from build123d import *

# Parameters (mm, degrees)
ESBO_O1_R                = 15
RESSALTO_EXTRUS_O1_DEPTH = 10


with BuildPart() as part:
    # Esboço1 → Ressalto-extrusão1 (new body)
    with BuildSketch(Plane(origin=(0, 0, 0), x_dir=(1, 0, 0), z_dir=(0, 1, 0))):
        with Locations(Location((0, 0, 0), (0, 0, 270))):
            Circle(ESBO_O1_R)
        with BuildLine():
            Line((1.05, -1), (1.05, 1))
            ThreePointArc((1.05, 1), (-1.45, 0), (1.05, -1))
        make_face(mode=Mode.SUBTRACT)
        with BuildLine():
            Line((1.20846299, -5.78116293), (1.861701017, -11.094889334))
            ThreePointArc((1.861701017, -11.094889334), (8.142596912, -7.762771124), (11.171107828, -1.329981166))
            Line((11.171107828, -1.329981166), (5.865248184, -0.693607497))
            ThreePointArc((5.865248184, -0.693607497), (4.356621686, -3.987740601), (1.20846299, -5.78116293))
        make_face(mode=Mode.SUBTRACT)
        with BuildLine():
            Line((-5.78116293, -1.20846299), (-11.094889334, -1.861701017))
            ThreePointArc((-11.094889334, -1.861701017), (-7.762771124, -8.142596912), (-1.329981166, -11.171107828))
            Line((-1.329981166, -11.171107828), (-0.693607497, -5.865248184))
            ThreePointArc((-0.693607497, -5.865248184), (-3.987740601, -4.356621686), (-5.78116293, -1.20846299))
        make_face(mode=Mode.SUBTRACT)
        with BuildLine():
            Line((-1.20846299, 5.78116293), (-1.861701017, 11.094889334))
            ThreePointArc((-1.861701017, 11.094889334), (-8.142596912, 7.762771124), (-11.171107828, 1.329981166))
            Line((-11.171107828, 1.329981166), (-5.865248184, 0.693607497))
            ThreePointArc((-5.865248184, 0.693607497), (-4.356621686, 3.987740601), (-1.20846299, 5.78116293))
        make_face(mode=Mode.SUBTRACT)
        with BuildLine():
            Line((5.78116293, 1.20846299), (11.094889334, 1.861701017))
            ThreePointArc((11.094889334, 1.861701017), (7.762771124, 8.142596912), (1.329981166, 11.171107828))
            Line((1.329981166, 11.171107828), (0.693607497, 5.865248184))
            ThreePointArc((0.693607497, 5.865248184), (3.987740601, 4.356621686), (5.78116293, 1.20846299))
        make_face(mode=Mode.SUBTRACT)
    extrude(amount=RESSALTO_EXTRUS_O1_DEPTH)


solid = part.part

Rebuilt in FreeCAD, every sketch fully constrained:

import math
import FreeCAD as App
import Part
import Sketcher
from FreeCAD import Vector

doc = App.newDocument("Part")
body = doc.addObject("PartDesign::Body", "Body")

# Sketch on XZ plane
sketch1 = body.newObject("Sketcher::SketchObject", "Sketch")
sketch1.AttachmentSupport = (doc.getObject("XZ_Plane"), [""])
sketch1.MapMode = "FlatFace"
sketch1.addGeometry([
    Part.Circle(Vector(0, 0, 0), Vector(0, 0, 1), 15),  # 0
    Part.LineSegment(Vector(-1.861701, -11.094889, 0), Vector(-1.208463, -5.781163, 0)),  # 1
    Part.ArcOfCircle(Part.Circle(Vector(0, 0, 0), Vector(0, 0, 1), 5.906118), math.radians(-173.255688), math.radians(-101.806791)),  # 2
    Part.LineSegment(Vector(-5.865248, -0.693607, 0), Vector(-11.171108, -1.329981, 0)),  # 3
    Part.ArcOfCircle(Part.Circle(Vector(0, 0, 0), Vector(0, 0, 1), 11.25), math.radians(-173.210584), math.radians(-99.525383)),  # 4
    Part.LineSegment(Vector(-11.094889, 1.861701, 0), Vector(-5.781163, 1.208463, 0)),  # 5
    Part.ArcOfCircle(Part.Circle(Vector(0, 0, 0), Vector(0, 0, 1), 5.906118), math.radians(96.744312), math.radians(168.193209)),  # 6
    Part.LineSegment(Vector(-0.693607, 5.865248, 0), Vector(-1.329981, 11.171108, 0)),  # 7
    Part.ArcOfCircle(Part.Circle(Vector(0, 0, 0), Vector(0, 0, 1), 11.25), math.radians(96.789416), math.radians(170.474617)),  # 8
    Part.LineSegment(Vector(1.05, -1, 0), Vector(1.05, 1, 0)),  # 9
    Part.ArcOfCircle(Part.Circle(Vector(0, 0, 0), Vector(0, 0, 1), 1.45), math.radians(43.602819), math.radians(316.397181)),  # 10
    Part.LineSegment(Vector(11.094889, -1.861701, 0), Vector(5.781163, -1.208463, 0)),  # 11
    Part.ArcOfCircle(Part.Circle(Vector(0, 0, 0), Vector(0, 0, 1), 5.906118), math.radians(-83.255688), math.radians(-11.806791)),  # 12
    Part.LineSegment(Vector(0.693607, -5.865248, 0), Vector(1.329981, -11.171108, 0)),  # 13
    Part.ArcOfCircle(Part.Circle(Vector(0, 0, 0), Vector(0, 0, 1), 11.25), math.radians(-83.210584), math.radians(-9.525383)),  # 14
    Part.LineSegment(Vector(1.861701, 11.094889, 0), Vector(1.208463, 5.781163, 0)),  # 15
    Part.ArcOfCircle(Part.Circle(Vector(0, 0, 0), Vector(0, 0, 1), 5.906118), math.radians(6.744312), math.radians(78.193209)),  # 16
    Part.LineSegment(Vector(5.865248, 0.693607, 0), Vector(11.171108, 1.329981, 0)),  # 17
    Part.ArcOfCircle(Part.Circle(Vector(0, 0, 0), Vector(0, 0, 1), 11.25), math.radians(6.789416), math.radians(80.474617)),  # 18
], False)
sketch1.addConstraint([
    Sketcher.Constraint("Coincident", 1, 2, 2, 2),
    Sketcher.Constraint("Coincident", 2, 1, 3, 1),
    Sketcher.Constraint("Coincident", 3, 2, 4, 1),
    Sketcher.Constraint("Coincident", 4, 2, 1, 1),
    Sketcher.Constraint("Coincident", 5, 2, 6, 2),
    Sketcher.Constraint("Coincident", 6, 1, 7, 1),
    Sketcher.Constraint("Coincident", 7, 2, 8, 1),
    Sketcher.Constraint("Coincident", 8, 2, 5, 1),
    Sketcher.Constraint("Coincident", 9, 1, 10, 2),
    Sketcher.Constraint("Coincident", 10, 1, 9, 2),
    Sketcher.Constraint("Coincident", 11, 2, 12, 2),
    Sketcher.Constraint("Coincident", 12, 1, 13, 1),
    Sketcher.Constraint("Coincident", 13, 2, 14, 1),
    Sketcher.Constraint("Coincident", 14, 2, 11, 1),
    Sketcher.Constraint("Coincident", 15, 2, 16, 2),
    Sketcher.Constraint("Coincident", 16, 1, 17, 1),
    Sketcher.Constraint("Coincident", 17, 2, 18, 1),
    Sketcher.Constraint("Coincident", 18, 2, 15, 1),
    Sketcher.Constraint("Vertical", 9),
    Sketcher.Constraint("Coincident", 0, 3, -1, 1),
    Sketcher.Constraint("Coincident", 2, 3, -1, 1),
    Sketcher.Constraint("Coincident", 4, 3, -1, 1),
    Sketcher.Constraint("Coincident", 6, 3, -1, 1),
    Sketcher.Constraint("Coincident", 8, 3, -1, 1),
    Sketcher.Constraint("Coincident", 10, 3, -1, 1),
    Sketcher.Constraint("Coincident", 12, 3, -1, 1),
    Sketcher.Constraint("Coincident", 14, 3, -1, 1),
    Sketcher.Constraint("Coincident", 16, 3, -1, 1),
    Sketcher.Constraint("Coincident", 18, 3, -1, 1),
    Sketcher.Constraint("Equal", 2, 6),
    Sketcher.Constraint("Equal", 4, 8),
    Sketcher.Constraint("Equal", 6, 12),
    Sketcher.Constraint("Equal", 8, 14),
    Sketcher.Constraint("Equal", 12, 16),
    Sketcher.Constraint("Equal", 14, 18),
    Sketcher.Constraint("Perpendicular", 1, 5),
    Sketcher.Constraint("Perpendicular", 3, 7),
    Sketcher.Constraint("Parallel", 5, 11),
    Sketcher.Constraint("Parallel", 7, 13),
    Sketcher.Constraint("Perpendicular", 11, 15),
    Sketcher.Constraint("Perpendicular", 13, 17),
    Sketcher.Constraint("Equal", 1, 5),
    Sketcher.Constraint("Equal", 5, 11),
    Sketcher.Constraint("Equal", 11, 15),
    Sketcher.Constraint("Diameter", 0, 30.0),
    Sketcher.Constraint("DistanceY", 9, 1, 9, 2, 2.0),
    Sketcher.Constraint("Radius", 4, 11.25),
    Sketcher.Constraint("Radius", 10, 1.45),
    Sketcher.Constraint("Radius", 2, 5.906118),
    Sketcher.Constraint("DistanceX", 4, 2, -1, 1, 1.861701),
    Sketcher.Constraint("Distance", 1, 5.353728),
    Sketcher.Constraint("DistanceX", 2, 1, -1, 1, 5.865248),
    Sketcher.Constraint("DistanceY", 3, 2, -1, 1, 1.329981),
    Sketcher.Constraint("DistanceY", -1, 1, 6, 1, 5.865248),
    Sketcher.Constraint("DistanceY", 12, 1, -1, 1, 5.865248),
    Sketcher.Constraint("DistanceX", -1, 1, 16, 1, 5.865248),
])
pad1 = body.newObject("PartDesign::Pad", "Pad")
pad1.Profile = sketch1
pad1.Length = 10
pad1.Reversed = True

doc.recompute()
